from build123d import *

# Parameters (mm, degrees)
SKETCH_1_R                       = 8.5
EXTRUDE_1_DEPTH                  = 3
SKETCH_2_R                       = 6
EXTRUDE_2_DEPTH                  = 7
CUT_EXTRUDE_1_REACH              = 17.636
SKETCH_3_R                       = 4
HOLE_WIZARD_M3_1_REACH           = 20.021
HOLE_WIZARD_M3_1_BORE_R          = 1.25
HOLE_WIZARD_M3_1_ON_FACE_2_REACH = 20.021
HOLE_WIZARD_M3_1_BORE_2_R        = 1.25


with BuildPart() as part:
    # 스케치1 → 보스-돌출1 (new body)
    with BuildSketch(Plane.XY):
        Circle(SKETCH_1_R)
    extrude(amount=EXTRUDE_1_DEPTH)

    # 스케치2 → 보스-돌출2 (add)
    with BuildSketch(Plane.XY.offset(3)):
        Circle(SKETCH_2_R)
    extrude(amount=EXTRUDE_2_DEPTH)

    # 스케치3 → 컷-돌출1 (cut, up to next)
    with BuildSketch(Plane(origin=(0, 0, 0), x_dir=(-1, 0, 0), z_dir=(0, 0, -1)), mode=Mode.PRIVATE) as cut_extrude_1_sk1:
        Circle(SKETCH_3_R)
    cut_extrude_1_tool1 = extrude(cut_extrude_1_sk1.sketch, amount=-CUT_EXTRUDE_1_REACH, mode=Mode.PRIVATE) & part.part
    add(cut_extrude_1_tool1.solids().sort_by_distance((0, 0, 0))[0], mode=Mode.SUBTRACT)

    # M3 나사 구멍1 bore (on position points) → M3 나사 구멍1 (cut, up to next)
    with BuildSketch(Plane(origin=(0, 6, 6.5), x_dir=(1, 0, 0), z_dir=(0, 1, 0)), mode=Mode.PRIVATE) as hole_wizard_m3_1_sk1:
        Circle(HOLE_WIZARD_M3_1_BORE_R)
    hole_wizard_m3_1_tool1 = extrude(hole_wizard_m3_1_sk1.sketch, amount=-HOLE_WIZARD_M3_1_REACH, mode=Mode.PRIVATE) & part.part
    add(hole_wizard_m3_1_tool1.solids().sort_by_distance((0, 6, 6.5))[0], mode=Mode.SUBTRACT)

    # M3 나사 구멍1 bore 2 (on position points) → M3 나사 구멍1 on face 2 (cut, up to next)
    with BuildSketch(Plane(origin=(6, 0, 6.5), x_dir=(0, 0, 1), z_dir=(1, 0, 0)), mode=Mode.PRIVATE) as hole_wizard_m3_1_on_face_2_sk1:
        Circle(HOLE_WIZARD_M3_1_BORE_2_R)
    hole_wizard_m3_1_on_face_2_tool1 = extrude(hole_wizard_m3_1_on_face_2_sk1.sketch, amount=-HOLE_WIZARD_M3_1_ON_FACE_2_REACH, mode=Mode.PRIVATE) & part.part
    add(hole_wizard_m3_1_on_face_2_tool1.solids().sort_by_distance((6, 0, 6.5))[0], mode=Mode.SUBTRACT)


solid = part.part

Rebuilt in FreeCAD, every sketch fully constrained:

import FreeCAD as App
import Part
import Sketcher

V = App.Vector

doc = App.newDocument("Part")
body = doc.addObject("PartDesign::Body", "Body")

# Sketch on XY plane
sketch1 = doc.addObject("Sketcher::SketchObject", "Sketch")
body.addObject(sketch1)
sketch1.AttachmentSupport = (doc.XY_Plane, [""])
sketch1.MapMode = "FlatFace"
sketch1.addGeometry(Part.Circle(V(0, 0, 0), V(0, 0, 1), 8), False)
sketch1.addConstraint([
    Sketcher.Constraint("Coincident", 0, 3, -1, 1),
    Sketcher.Constraint("Diameter", 0, 17.0),
])
pad1 = doc.addObject("PartDesign::Pad", "Pad")
body.addObject(pad1)
pad1.Profile = sketch1
pad1.Length = 3

# Sketch on XY plane
sketch2 = doc.addObject("Sketcher::SketchObject", "Sketch001")
body.addObject(sketch2)
sketch2.AttachmentSupport = (doc.XY_Plane, [""])
sketch2.MapMode = "FlatFace"
sketch2.AttachmentOffset = App.Placement(V(0, 0, 3), App.Rotation())
sketch2.addGeometry(Part.Circle(V(0, 0, 0), V(0, 0, 1), 6), False)
sketch2.addConstraint([
    Sketcher.Constraint("Coincident", 0, 3, -1, 1),
    Sketcher.Constraint("Diameter", 0, 12.0),
])
pad2 = doc.addObject("PartDesign::Pad", "Pad001")
body.addObject(pad2)
pad2.Profile = sketch2
pad2.Length = 7

# Sketch on XY plane
sketch3 = doc.addObject("Sketcher::SketchObject", "Sketch002")
body.addObject(sketch3)
sketch3.AttachmentSupport = (doc.XY_Plane, [""])
sketch3.MapMode = "FlatFace"
sketch3.addGeometry(Part.Circle(V(0, 0, 0), V(0, 0, 1), 4), False)
sketch3.addConstraint([
    Sketcher.Constraint("Coincident", 0, 3, -1, 1),
    Sketcher.Constraint("Diameter", 0, 8.0),
])
pocket1 = doc.addObject("PartDesign::Pocket", "Pocket")
body.addObject(pocket1)
pocket1.Profile = sketch3
pocket1.Type = "UpToFirst"
pocket1.Reversed = True

# Sketch on XZ plane
sketch4 = doc.addObject("Sketcher::SketchObject", "Sketch003")
body.addObject(sketch4)
sketch4.AttachmentSupport = (doc.XZ_Plane, [""])
sketch4.MapMode = "FlatFace"
sketch4.AttachmentOffset = App.Placement(V(0, 0, -6), App.Rotation())
sketch4.addGeometry(Part.Circle(V(0, 6.5, 0), V(0, 0, 1), 1.2), False)
sketch4.addConstraint([
    Sketcher.Constraint("PointOnObject", 0, 3, -2),
    Sketcher.Constraint("Diameter", 0, 2.5),
    Sketcher.Constraint("DistanceY", -1, 1, 0, 3, 6.5),
])
pocket2 = doc.addObject("PartDesign::Pocket", "Pocket001")
body.addObject(pocket2)
pocket2.Profile = sketch4
pocket2.Type = "UpToFirst"
pocket2.Reversed = True

# Sketch on YZ plane
sketch5 = doc.addObject("Sketcher::SketchObject", "Sketch004")
body.addObject(sketch5)
sketch5.AttachmentSupport = (doc.YZ_Plane, [""])
sketch5.MapMode = "FlatFace"
sketch5.AttachmentOffset = App.Placement(V(0, 0, 6), App.Rotation())
sketch5.addGeometry(Part.Circle(V(0, 6.5, 0), V(0, 0, 1), 1.2), False)
sketch5.addConstraint([
    Sketcher.Constraint("PointOnObject", 0, 3, -2),
    Sketcher.Constraint("Diameter", 0, 2.5),
    Sketcher.Constraint("DistanceY", -1, 1, 0, 3, 6.5),
])
pocket3 = doc.addObject("PartDesign::Pocket", "Pocket002")
body.addObject(pocket3)
pocket3.Profile = sketch5
pocket3.Type = "UpToFirst"

doc.recompute()
